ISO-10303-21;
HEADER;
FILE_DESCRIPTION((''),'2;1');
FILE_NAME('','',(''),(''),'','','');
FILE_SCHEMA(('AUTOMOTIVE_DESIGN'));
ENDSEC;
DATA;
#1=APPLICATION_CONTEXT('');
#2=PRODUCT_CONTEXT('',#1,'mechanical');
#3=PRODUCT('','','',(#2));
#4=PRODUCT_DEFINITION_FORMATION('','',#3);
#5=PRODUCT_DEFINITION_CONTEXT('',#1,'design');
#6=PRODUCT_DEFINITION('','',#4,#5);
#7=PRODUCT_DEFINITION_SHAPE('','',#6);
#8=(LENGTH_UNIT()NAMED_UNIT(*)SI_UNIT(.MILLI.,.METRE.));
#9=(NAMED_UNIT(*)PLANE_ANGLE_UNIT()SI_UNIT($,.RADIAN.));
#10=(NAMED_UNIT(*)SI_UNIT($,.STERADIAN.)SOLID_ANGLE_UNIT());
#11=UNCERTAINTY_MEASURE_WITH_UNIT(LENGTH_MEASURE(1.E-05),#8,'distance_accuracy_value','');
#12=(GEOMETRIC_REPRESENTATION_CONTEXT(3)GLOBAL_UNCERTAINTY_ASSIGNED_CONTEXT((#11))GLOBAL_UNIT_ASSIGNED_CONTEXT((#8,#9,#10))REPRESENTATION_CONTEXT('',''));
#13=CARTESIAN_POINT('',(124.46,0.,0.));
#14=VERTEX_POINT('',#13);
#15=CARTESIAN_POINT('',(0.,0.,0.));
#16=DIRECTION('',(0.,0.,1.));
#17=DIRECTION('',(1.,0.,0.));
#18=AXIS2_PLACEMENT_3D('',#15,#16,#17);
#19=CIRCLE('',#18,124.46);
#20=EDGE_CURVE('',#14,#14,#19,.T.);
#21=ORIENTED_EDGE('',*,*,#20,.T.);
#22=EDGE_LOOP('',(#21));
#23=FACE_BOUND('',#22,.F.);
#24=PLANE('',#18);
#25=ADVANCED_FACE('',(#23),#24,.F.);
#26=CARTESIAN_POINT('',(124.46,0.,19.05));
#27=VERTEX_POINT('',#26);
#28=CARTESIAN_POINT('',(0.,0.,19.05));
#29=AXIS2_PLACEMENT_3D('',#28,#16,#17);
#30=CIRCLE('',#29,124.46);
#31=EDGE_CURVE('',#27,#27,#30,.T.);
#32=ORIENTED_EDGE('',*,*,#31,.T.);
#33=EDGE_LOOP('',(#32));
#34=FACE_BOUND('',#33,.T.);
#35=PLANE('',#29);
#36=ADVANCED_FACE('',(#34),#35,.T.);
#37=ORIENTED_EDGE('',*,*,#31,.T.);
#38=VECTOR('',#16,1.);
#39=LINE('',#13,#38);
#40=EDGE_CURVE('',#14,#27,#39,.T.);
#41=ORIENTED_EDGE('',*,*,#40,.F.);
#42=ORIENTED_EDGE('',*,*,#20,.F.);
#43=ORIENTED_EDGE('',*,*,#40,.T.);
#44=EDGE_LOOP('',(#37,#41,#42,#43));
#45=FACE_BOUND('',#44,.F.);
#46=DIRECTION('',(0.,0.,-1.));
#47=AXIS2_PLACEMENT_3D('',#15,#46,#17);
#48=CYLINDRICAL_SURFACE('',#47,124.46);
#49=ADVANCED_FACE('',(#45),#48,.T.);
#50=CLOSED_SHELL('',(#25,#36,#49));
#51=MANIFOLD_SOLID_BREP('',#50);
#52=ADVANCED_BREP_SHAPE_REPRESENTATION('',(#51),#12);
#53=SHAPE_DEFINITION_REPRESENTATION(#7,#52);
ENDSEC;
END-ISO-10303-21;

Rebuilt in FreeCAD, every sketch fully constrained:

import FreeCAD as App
import Part
import Sketcher
from FreeCAD import Vector
Q = App.Units.Quantity

doc = App.newDocument("Part")
params = doc.addObject("Spreadsheet::Sheet", "Params")
for row, (alias, value) in enumerate([
    ("sketch1_diameter", "9.8 in"),
    ("pad1_length", "0.75 in"),
], start=1):
    params.set(f"A{row}", alias)
    params.set(f"B{row}", "=" + value)
    params.setAlias(f"B{row}", alias)

body = doc.addObject("PartDesign::Body", "Body")

sketch1 = body.newObject("Sketcher::SketchObject", "Sketch")
sketch1.AttachmentSupport = (doc.getObject("XY_Plane"), [""])
sketch1.MapMode = "FlatFace"
sketch1.addGeometry(Part.Circle(Vector(0, 0, 0), Vector(0, 0, 1), 124), False)
sketch1.addConstraint(Sketcher.Constraint("Coincident", 0, 3, -1, 1))
sketch1.addConstraint(Sketcher.Constraint("Diameter", 0, Q("9.8 in")))
sketch1.setExpression("Constraints[1]", "Params.sketch1_diameter")
pad1 = body.newObject("PartDesign::Pad", "Pad")
pad1.Profile = sketch1
pad1.setExpression("Length", "Params.pad1_length")

doc.recompute()
